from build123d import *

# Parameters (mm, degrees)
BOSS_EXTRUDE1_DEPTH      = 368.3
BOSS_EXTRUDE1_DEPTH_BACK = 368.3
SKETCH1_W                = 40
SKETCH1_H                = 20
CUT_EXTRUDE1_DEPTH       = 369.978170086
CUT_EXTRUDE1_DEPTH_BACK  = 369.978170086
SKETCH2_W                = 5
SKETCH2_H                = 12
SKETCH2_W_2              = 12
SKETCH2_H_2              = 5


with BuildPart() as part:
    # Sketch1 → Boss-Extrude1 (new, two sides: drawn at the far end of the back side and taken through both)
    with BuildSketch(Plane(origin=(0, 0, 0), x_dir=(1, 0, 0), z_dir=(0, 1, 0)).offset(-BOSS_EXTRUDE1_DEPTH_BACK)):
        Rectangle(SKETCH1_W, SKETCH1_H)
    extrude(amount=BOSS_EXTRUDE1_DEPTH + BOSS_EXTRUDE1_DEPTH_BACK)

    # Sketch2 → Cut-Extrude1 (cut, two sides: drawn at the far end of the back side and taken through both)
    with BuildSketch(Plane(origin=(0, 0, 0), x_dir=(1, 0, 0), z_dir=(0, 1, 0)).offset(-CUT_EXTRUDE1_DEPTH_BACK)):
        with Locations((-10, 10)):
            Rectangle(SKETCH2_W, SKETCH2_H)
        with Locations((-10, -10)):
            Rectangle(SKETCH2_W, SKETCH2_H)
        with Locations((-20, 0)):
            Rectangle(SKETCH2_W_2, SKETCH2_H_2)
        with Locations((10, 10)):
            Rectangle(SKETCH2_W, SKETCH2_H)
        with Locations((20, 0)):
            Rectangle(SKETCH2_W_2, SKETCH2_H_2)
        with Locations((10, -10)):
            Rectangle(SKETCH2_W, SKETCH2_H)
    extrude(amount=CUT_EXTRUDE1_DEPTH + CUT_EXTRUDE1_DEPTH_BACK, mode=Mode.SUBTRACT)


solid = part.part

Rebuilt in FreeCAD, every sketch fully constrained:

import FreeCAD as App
import Part
import Sketcher
from FreeCAD import Vector
Q = App.Units.Quantity

doc = App.newDocument("Part")
body = doc.addObject("PartDesign::Body", "Body")

sketch1 = doc.addObject("Sketcher::SketchObject", "Sketch")
body.addObject(sketch1)
sketch1.AttachmentSupport = (doc.XZ_Plane, [""])
sketch1.MapMode = "FlatFace"
sketch1.addGeometry([
    Part.LineSegment(Vector(-20, -10, 0), Vector(-20, 10, 0)),
    Part.LineSegment(Vector(-20, 10, 0), Vector(20, 10, 0)),
    Part.LineSegment(Vector(20, 10, 0), Vector(20, -10, 0)),
    Part.LineSegment(Vector(20, -10, 0), Vector(-20, -10, 0)),
], False)
sketch1.addConstraint([
    Sketcher.Constraint("Coincident", 0, 2, 1, 1),
    Sketcher.Constraint("Coincident", 1, 2, 2, 1),
    Sketcher.Constraint("Coincident", 2, 2, 3, 1),
    Sketcher.Constraint("Coincident", 3, 2, 0, 1),
    Sketcher.Constraint("Vertical", 0),
    Sketcher.Constraint("Horizontal", 1),
    Sketcher.Constraint("Vertical", 2),
    Sketcher.Constraint("Horizontal", 3),
    Sketcher.Constraint("Symmetric", 0, 2, 2, 2, -1, 1),
    Sketcher.Constraint("DistanceX", 1, 1, 1, 2, Q("40 mm")),
    Sketcher.Constraint("DistanceY", 0, 1, 0, 2, Q("20 mm")),
])
pad1 = doc.addObject("PartDesign::Pad", "Pad")
body.addObject(pad1)
pad1.Profile = sketch1
pad1.Type = "TwoLengths"
pad1.Length = 368.3
pad1.Length2 = 368.3
pad1.Reversed = True

sketch2 = doc.addObject("Sketcher::SketchObject", "Sketch001")
body.addObject(sketch2)
sketch2.AttachmentSupport = (doc.XZ_Plane, [""])
sketch2.MapMode = "FlatFace"
sketch2.addGeometry([
    Part.LineSegment(Vector(-12.5, -16, 0), Vector(-12.5, -4, 0)),
    Part.LineSegment(Vector(-12.5, -4, 0), Vector(-7.5, -4, 0)),
    Part.LineSegment(Vector(-7.5, -4, 0), Vector(-7.5, -16, 0)),
    Part.LineSegment(Vector(-7.5, -16, 0), Vector(-12.5, -16, 0)),
    Part.LineSegment(Vector(-12.5, 4, 0), Vector(-12.5, 16, 0)),
    Part.LineSegment(Vector(-12.5, 16, 0), Vector(-7.5, 16, 0)),
    Part.LineSegment(Vector(-7.5, 16, 0), Vector(-7.5, 4, 0)),
    Part.LineSegment(Vector(-7.5, 4, 0), Vector(-12.5, 4, 0)),
    Part.LineSegment(Vector(-26, -2.5, 0), Vector(-26, 2.5, 0)),
    Part.LineSegment(Vector(-26, 2.5, 0), Vector(-14, 2.5, 0)),
    Part.LineSegment(Vector(-14, 2.5, 0), Vector(-14, -2.5, 0)),
    Part.LineSegment(Vector(-14, -2.5, 0), Vector(-26, -2.5, 0)),
    Part.LineSegment(Vector(7.5, -16, 0), Vector(7.5, -4, 0)),
    Part.LineSegment(Vector(7.5, -4, 0), Vector(12.5, -4, 0)),
    Part.LineSegment(Vector(12.5, -4, 0), Vector(12.5, -16, 0)),
    Part.LineSegment(Vector(12.5, -16, 0), Vector(7.5, -16, 0)),
    Part.LineSegment(Vector(14, -2.5, 0), Vector(14, 2.5, 0)),
    Part.LineSegment(Vector(14, 2.5, 0), Vector(26, 2.5, 0)),
    Part.LineSegment(Vector(26, 2.5, 0), Vector(26, -2.5, 0)),
    Part.LineSegment(Vector(26, -2.5, 0), Vector(14, -2.5, 0)),
    Part.LineSegment(Vector(7.5, 4, 0), Vector(7.5, 16, 0)),
    Part.LineSegment(Vector(7.5, 16, 0), Vector(12.5, 16, 0)),
    Part.LineSegment(Vector(12.5, 16, 0), Vector(12.5, 4, 0)),
    Part.LineSegment(Vector(12.5, 4, 0), Vector(7.5, 4, 0)),
], False)
sketch2.addConstraint([
    Sketcher.Constraint("Coincident", 0, 2, 1, 1),
    Sketcher.Constraint("Coincident", 1, 2, 2, 1),
    Sketcher.Constraint("Coincident", 2, 2, 3, 1),
    Sketcher.Constraint("Coincident", 3, 2, 0, 1),
    Sketcher.Constraint("Coincident", 4, 2, 5, 1),
    Sketcher.Constraint("Coincident", 5, 2, 6, 1),
    Sketcher.Constraint("Coincident", 6, 2, 7, 1),
    Sketcher.Constraint("Coincident", 7, 2, 4, 1),
    Sketcher.Constraint("Coincident", 8, 2, 9, 1),
    Sketcher.Constraint("Coincident", 9, 2, 10, 1),
    Sketcher.Constraint("Coincident", 10, 2, 11, 1),
    Sketcher.Constraint("Coincident", 11, 2, 8, 1),
    Sketcher.Constraint("Coincident", 12, 2, 13, 1),
    Sketcher.Constraint("Coincident", 13, 2, 14, 1),
    Sketcher.Constraint("Coincident", 14, 2, 15, 1),
    Sketcher.Constraint("Coincident", 15, 2, 12, 1),
    Sketcher.Constraint("Coincident", 16, 2, 17, 1),
    Sketcher.Constraint("Coincident", 17, 2, 18, 1),
    Sketcher.Constraint("Coincident", 18, 2, 19, 1),
    Sketcher.Constraint("Coincident", 19, 2, 16, 1),
    Sketcher.Constraint("Coincident", 20, 2, 21, 1),
    Sketcher.Constraint("Coincident", 21, 2, 22, 1),
    Sketcher.Constraint("Coincident", 22, 2, 23, 1),
    Sketcher.Constraint("Coincident", 23, 2, 20, 1),
    Sketcher.Constraint("Vertical", 0),
    Sketcher.Constraint("Horizontal", 1),
    Sketcher.Constraint("Vertical", 2),
    Sketcher.Constraint("Horizontal", 3),
    Sketcher.Constraint("Vertical", 4),
    Sketcher.Constraint("Horizontal", 5),
    Sketcher.Constraint("Vertical", 6),
    Sketcher.Constraint("Horizontal", 7),
    Sketcher.Constraint("Vertical", 8),
    Sketcher.Constraint("Horizontal", 9),
    Sketcher.Constraint("Vertical", 10),
    Sketcher.Constraint("Horizontal", 11),
    Sketcher.Constraint("Vertical", 12),
    Sketcher.Constraint("Horizontal", 13),
    Sketcher.Constraint("Vertical", 14),
    Sketcher.Constraint("Horizontal", 15),
    Sketcher.Constraint("Vertical", 16),
    Sketcher.Constraint("Horizontal", 17),
    Sketcher.Constraint("Vertical", 18),
    Sketcher.Constraint("Horizontal", 19),
    Sketcher.Constraint("Vertical", 20),
    Sketcher.Constraint("Horizontal", 21),
    Sketcher.Constraint("Vertical", 22),
    Sketcher.Constraint("Horizontal", 23),
    Sketcher.Constraint("Symmetric", 6, 2, 12, 2, -1, 1),
    Sketcher.Constraint("Symmetric", 4, 2, 14, 2, -1, 1),
    Sketcher.Constraint("Symmetric", 10, 2, 16, 2, -1, 1),
    Sketcher.Constraint("Symmetric", 8, 2, 18, 2, -1, 1),
    Sketcher.Constraint("Symmetric", 2, 2, 20, 2, -1, 1),
    Sketcher.Constraint("Symmetric", 0, 2, 22, 2, -1, 1),
    Sketcher.Constraint("Symmetric", 1, 2, 12, 2, -2),
    Sketcher.Constraint("Symmetric", 3, 2, 14, 2, -2),
    Sketcher.Constraint("Horizontal", 9, 2, 16, 2),
    Sketcher.Constraint("Equal", 19, 0),
    Sketcher.Constraint("Equal", 23, 8),
    Sketcher.Constraint("DistanceX", 1, 1, 1, 2, Q("5 mm")),
    Sketcher.Constraint("DistanceX", 9, 1, 9, 2, Q("12 mm")),
    Sketcher.Constraint("DistanceY", 0, 2, -1, 1, Q("4 mm")),
    Sketcher.Constraint("DistanceX", 8, 2, -1, 1, Q("26 mm")),
    Sketcher.Constraint("DistanceX", 1, 2, 12, 2, Q("15 mm")),
])
pocket1 = doc.addObject("PartDesign::Pocket", "Pocket")
body.addObject(pocket1)
pocket1.Profile = sketch2
pocket1.Type = "ThroughAll"
pocket1.Midplane = True

doc.recompute()
